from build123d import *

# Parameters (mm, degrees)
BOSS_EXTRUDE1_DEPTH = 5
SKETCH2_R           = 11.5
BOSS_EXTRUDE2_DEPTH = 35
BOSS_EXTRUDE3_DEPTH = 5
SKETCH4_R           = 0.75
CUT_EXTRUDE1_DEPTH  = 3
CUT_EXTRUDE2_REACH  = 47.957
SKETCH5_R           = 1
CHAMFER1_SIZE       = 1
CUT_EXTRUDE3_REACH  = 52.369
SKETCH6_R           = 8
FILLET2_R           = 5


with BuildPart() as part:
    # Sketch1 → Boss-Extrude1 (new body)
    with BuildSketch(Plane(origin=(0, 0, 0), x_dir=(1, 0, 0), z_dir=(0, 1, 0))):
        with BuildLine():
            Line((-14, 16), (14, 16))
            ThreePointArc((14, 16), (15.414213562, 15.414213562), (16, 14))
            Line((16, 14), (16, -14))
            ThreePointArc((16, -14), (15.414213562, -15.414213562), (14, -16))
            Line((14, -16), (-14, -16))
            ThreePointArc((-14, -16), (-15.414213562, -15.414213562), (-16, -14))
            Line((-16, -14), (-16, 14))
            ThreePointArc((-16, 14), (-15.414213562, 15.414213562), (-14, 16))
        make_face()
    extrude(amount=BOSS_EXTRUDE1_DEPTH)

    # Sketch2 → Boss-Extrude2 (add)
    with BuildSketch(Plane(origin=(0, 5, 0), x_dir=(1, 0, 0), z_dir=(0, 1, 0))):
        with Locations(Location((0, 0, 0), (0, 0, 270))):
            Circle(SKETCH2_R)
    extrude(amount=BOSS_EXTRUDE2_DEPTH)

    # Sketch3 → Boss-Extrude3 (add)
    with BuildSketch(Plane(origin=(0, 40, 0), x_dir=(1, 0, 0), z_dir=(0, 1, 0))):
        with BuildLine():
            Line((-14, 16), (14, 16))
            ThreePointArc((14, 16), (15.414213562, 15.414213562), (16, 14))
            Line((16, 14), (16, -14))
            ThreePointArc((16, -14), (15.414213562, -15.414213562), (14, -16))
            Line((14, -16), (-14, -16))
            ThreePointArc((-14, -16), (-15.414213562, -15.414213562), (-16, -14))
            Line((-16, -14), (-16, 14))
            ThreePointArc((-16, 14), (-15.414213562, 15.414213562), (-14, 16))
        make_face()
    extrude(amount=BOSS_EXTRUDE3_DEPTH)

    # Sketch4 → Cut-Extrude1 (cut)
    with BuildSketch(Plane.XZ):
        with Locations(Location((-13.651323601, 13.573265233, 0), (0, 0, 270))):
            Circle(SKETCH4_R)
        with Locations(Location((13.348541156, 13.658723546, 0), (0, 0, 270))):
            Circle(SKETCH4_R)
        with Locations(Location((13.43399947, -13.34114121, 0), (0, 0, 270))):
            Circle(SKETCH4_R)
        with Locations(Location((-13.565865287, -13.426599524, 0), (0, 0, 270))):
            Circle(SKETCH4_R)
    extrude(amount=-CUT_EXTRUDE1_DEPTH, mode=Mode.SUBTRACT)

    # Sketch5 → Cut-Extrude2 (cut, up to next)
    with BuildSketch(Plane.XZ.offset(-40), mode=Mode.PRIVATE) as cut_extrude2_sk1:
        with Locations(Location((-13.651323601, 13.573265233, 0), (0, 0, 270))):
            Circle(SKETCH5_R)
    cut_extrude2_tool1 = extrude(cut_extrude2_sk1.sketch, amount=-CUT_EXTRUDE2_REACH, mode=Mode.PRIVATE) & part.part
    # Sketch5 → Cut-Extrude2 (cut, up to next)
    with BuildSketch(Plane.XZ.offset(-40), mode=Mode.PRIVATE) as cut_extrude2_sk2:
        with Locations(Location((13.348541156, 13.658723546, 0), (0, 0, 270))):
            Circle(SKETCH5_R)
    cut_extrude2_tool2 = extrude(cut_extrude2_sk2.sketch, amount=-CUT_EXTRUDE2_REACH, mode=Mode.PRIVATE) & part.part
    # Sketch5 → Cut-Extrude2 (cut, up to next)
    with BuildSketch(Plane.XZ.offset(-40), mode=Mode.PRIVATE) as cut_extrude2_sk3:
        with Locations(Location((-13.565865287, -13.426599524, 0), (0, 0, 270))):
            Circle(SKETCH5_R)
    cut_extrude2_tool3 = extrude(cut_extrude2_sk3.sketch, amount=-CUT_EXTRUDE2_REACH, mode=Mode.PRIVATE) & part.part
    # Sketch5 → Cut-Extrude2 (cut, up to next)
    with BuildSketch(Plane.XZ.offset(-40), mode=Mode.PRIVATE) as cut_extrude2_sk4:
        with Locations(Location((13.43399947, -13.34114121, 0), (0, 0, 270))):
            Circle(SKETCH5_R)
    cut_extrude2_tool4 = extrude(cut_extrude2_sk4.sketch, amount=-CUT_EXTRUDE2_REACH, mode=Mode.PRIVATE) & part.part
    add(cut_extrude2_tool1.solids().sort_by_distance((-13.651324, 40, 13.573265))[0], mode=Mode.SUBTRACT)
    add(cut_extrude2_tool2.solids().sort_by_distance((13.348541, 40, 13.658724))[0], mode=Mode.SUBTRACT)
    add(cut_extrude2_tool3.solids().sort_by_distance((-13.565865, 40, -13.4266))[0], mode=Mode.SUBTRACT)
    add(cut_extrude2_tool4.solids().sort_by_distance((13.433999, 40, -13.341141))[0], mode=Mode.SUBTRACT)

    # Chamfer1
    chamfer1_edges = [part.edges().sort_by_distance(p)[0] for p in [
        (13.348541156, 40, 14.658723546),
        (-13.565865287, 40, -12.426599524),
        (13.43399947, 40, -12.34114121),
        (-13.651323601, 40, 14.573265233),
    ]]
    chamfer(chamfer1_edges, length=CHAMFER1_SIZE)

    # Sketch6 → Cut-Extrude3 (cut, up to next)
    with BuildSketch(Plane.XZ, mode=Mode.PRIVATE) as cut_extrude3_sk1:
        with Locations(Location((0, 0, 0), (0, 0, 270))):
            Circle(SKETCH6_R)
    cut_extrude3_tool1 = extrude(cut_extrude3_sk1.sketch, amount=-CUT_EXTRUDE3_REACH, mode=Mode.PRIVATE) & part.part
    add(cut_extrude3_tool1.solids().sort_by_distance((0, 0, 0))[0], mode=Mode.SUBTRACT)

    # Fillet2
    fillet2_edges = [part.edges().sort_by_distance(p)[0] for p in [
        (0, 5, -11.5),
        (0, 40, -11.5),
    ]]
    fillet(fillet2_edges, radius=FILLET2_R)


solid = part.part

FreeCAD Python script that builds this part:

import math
import FreeCAD as App
import Part
import Sketcher

V = App.Vector


def edges_at(feature, points):
    """Names of the edges that pass closest to the given points."""
    edges = feature.Shape.Edges
    near = lambda p: min(range(len(edges)), key=lambda i: edges[i].distToShape(Part.Vertex(*p))[0])
    return sorted({f"Edge{near(p) + 1}" for p in points})

doc = App.newDocument("Part")
body = doc.addObject("PartDesign::Body", "Body")

# Sketch on XZ plane
sketch1 = body.newObject("Sketcher::SketchObject", "Sketch")
sketch1.AttachmentSupport = (doc.getObject("XZ_Plane"), [""])
sketch1.MapMode = "FlatFace"
sketch1.addGeometry([
    Part.LineSegment(V(14, -16, 0), V(-14, -16, 0)),  # 0
    Part.ArcOfCircle(Part.Circle(V(-14, -14, 0), V(0, 0, 1), 2), math.radians(-180), math.radians(-90)),  # 1
    Part.LineSegment(V(-16, -14, 0), V(-16, 14, 0)),  # 2
    Part.ArcOfCircle(Part.Circle(V(-14, 14, 0), V(0, 0, 1), 2), math.radians(90), math.radians(180)),  # 3
    Part.LineSegment(V(-14, 16, 0), V(14, 16, 0)),  # 4
    Part.ArcOfCircle(Part.Circle(V(14, 14, 0), V(0, 0, 1), 2), math.radians(0), math.radians(90)),  # 5
    Part.LineSegment(V(16, 14, 0), V(16, -14, 0)),  # 6
    Part.ArcOfCircle(Part.Circle(V(14, -14, 0), V(0, 0, 1), 2), math.radians(-90), math.radians(0)),  # 7
], False)
sketch1.addConstraint([
    Sketcher.Constraint("Tangent", 0, 2, 1, 2),
    Sketcher.Constraint("Tangent", 1, 1, 2, 1),
    Sketcher.Constraint("Tangent", 2, 2, 3, 2),
    Sketcher.Constraint("Tangent", 3, 1, 4, 1),
    Sketcher.Constraint("Tangent", 4, 2, 5, 2),
    Sketcher.Constraint("Tangent", 5, 1, 6, 1),
    Sketcher.Constraint("Tangent", 6, 2, 7, 2),
    Sketcher.Constraint("Tangent", 7, 1, 0, 1),
    Sketcher.Constraint("Horizontal", 0),
    Sketcher.Constraint("Vertical", 2),
    Sketcher.Constraint("Horizontal", 4),
    Sketcher.Constraint("Vertical", 6),
    Sketcher.Constraint("Equal", 1, 3),
    Sketcher.Constraint("Equal", 3, 5),
    Sketcher.Constraint("Equal", 5, 7),
    Sketcher.Constraint("Symmetric", 1, 3, 5, 3, -1, 1),
    Sketcher.Constraint("Equal", 4, 2),
    Sketcher.Constraint("Radius", 1, 2.0),
    Sketcher.Constraint("DistanceX", 0, 2, 0, 1, 28.0),
])
pad1 = body.newObject("PartDesign::Pad", "Pad")
pad1.Profile = sketch1
pad1.Length = 5
pad1.Reversed = True

# Sketch on XZ plane
sketch2 = body.newObject("Sketcher::SketchObject", "Sketch001")
sketch2.AttachmentSupport = (doc.getObject("XZ_Plane"), [""])
sketch2.MapMode = "FlatFace"
sketch2.AttachmentOffset = App.Placement(V(0, 0, -5), App.Rotation())
sketch2.addGeometry(Part.Circle(V(0, 0, 0), V(0, 0, 1), 12), False)
sketch2.addConstraint([
    Sketcher.Constraint("Coincident", 0, 3, -1, 1),
    Sketcher.Constraint("Diameter", 0, 23.0),
])
pad2 = body.newObject("PartDesign::Pad", "Pad001")
pad2.Profile = sketch2
pad2.Length = 35
pad2.Reversed = True

# Sketch on XZ plane
sketch3 = body.newObject("Sketcher::SketchObject", "Sketch002")
sketch3.AttachmentSupport = (doc.getObject("XZ_Plane"), [""])
sketch3.MapMode = "FlatFace"
sketch3.AttachmentOffset = App.Placement(V(0, 0, -40), App.Rotation())
sketch3.addGeometry([
    Part.LineSegment(V(14, -16, 0), V(-14, -16, 0)),  # 0
    Part.ArcOfCircle(Part.Circle(V(-14, -14, 0), V(0, 0, 1), 2), math.radians(-180), math.radians(-90)),  # 1
    Part.LineSegment(V(-16, -14, 0), V(-16, 14, 0)),  # 2
    Part.ArcOfCircle(Part.Circle(V(-14, 14, 0), V(0, 0, 1), 2), math.radians(90), math.radians(180)),  # 3
    Part.LineSegment(V(-14, 16, 0), V(14, 16, 0)),  # 4
    Part.ArcOfCircle(Part.Circle(V(14, 14, 0), V(0, 0, 1), 2), math.radians(0), math.radians(90)),  # 5
    Part.LineSegment(V(16, 14, 0), V(16, -14, 0)),  # 6
    Part.ArcOfCircle(Part.Circle(V(14, -14, 0), V(0, 0, 1), 2), math.radians(-90), math.radians(0)),  # 7
], False)
sketch3.addConstraint([
    Sketcher.Constraint("Tangent", 0, 2, 1, 2),
    Sketcher.Constraint("Tangent", 1, 1, 2, 1),
    Sketcher.Constraint("Tangent", 2, 2, 3, 2),
    Sketcher.Constraint("Tangent", 3, 1, 4, 1),
    Sketcher.Constraint("Tangent", 4, 2, 5, 2),
    Sketcher.Constraint("Tangent", 5, 1, 6, 1),
    Sketcher.Constraint("Tangent", 6, 2, 7, 2),
    Sketcher.Constraint("Tangent", 7, 1, 0, 1),
    Sketcher.Constraint("Horizontal", 0),
    Sketcher.Constraint("Vertical", 2),
    Sketcher.Constraint("Horizontal", 4),
    Sketcher.Constraint("Vertical", 6),
    Sketcher.Constraint("Equal", 1, 3),
    Sketcher.Constraint("Equal", 3, 5),
    Sketcher.Constraint("Equal", 5, 7),
    Sketcher.Constraint("Symmetric", 1, 3, 5, 3, -1, 1),
    Sketcher.Constraint("Equal", 4, 2),
    Sketcher.Constraint("Radius", 1, 2.0),
    Sketcher.Constraint("DistanceX", 0, 2, 0, 1, 28.0),
])
pad3 = body.newObject("PartDesign::Pad", "Pad002")
pad3.Profile = sketch3
pad3.Length = 5
pad3.Reversed = True

# Sketch on XZ plane
sketch4 = body.newObject("Sketcher::SketchObject", "Sketch003")
sketch4.AttachmentSupport = (doc.getObject("XZ_Plane"), [""])
sketch4.MapMode = "FlatFace"
sketch4.addGeometry([
    Part.Circle(V(-13.7, 13.6, 0), V(0, 0, 1), 0.8),
    Part.Circle(V(13.3, 13.7, 0), V(0, 0, 1), 0.8),
    Part.Circle(V(13.4, -13.3, 0), V(0, 0, 1), 0.8),
    Part.Circle(V(-13.6, -13.4, 0), V(0, 0, 1), 0.8),
], False)
sketch4.addConstraint([
    Sketcher.Constraint("Equal", 0, 1),
    Sketcher.Constraint("Equal", 1, 2),
    Sketcher.Constraint("Equal", 2, 3),
    Sketcher.Constraint("Diameter", 0, 1.5),
    Sketcher.Constraint("DistanceX", -1, 1, 2, 3, 13.433999),
    Sketcher.Constraint("DistanceY", 3, 3, -1, 1, 13.4266),
    Sketcher.Constraint("DistanceX", -1, 1, 1, 3, 13.348541),
    Sketcher.Constraint("DistanceY", 2, 3, -1, 1, 13.341141),
    Sketcher.Constraint("DistanceY", 0, 3, 1, 3, 0.085458),
    Sketcher.Constraint("DistanceX", 0, 3, 3, 3, 0.085458),
    Sketcher.Constraint("DistanceX", 0, 3, -1, 1, 13.651324),
    Sketcher.Constraint("DistanceY", -1, 1, 0, 3, 13.573265),
])
pocket1 = body.newObject("PartDesign::Pocket", "Pocket")
pocket1.Profile = sketch4
pocket1.Length = 3

# Sketch on XZ plane
sketch5 = body.newObject("Sketcher::SketchObject", "Sketch004")
sketch5.AttachmentSupport = (doc.getObject("XZ_Plane"), [""])
sketch5.MapMode = "FlatFace"
sketch5.AttachmentOffset = App.Placement(V(0, 0, -40), App.Rotation())
sketch5.addGeometry(Part.Circle(V(-13.7, 13.6, 0), V(0, 0, 1), 1), False)
sketch5.addConstraint([
    Sketcher.Constraint("Diameter", 0, 2.0),
    Sketcher.Constraint("DistanceX", 0, 3, -1, 1, 13.651324),
    Sketcher.Constraint("DistanceY", -1, 1, 0, 3, 13.573265),
])
pocket2 = body.newObject("PartDesign::Pocket", "Pocket001")
pocket2.Profile = sketch5
pocket2.Type = "UpToFirst"

# Sketch on XZ plane
sketch6 = body.newObject("Sketcher::SketchObject", "Sketch005")
sketch6.AttachmentSupport = (doc.getObject("XZ_Plane"), [""])
sketch6.MapMode = "FlatFace"
sketch6.AttachmentOffset = App.Placement(V(0, 0, -40), App.Rotation())
sketch6.addGeometry(Part.Circle(V(13.3, 13.7, 0), V(0, 0, 1), 1), False)
sketch6.addConstraint([
    Sketcher.Constraint("Diameter", 0, 2.0),
    Sketcher.Constraint("DistanceX", -1, 1, 0, 3, 13.348541),
    Sketcher.Constraint("DistanceY", -1, 1, 0, 3, 13.658724),
])
pocket3 = body.newObject("PartDesign::Pocket", "Pocket002")
pocket3.Profile = sketch6
pocket3.Type = "UpToFirst"

# Sketch on XZ plane
sketch7 = body.newObject("Sketcher::SketchObject", "Sketch006")
sketch7.AttachmentSupport = (doc.getObject("XZ_Plane"), [""])
sketch7.MapMode = "FlatFace"
sketch7.AttachmentOffset = App.Placement(V(0, 0, -40), App.Rotation())
sketch7.addGeometry(Part.Circle(V(-13.6, -13.4, 0), V(0, 0, 1), 1), False)
sketch7.addConstraint([
    Sketcher.Constraint("Diameter", 0, 2.0),
    Sketcher.Constraint("DistanceY", 0, 3, -1, 1, 13.4266),
    Sketcher.Constraint("DistanceX", 0, 3, -1, 1, 13.565865),
])
pocket4 = body.newObject("PartDesign::Pocket", "Pocket003")
pocket4.Profile = sketch7
pocket4.Type = "UpToFirst"

# Sketch on XZ plane
sketch8 = body.newObject("Sketcher::SketchObject", "Sketch007")
sketch8.AttachmentSupport = (doc.getObject("XZ_Plane"), [""])
sketch8.MapMode = "FlatFace"
sketch8.AttachmentOffset = App.Placement(V(0, 0, -40), App.Rotation())
sketch8.addGeometry(Part.Circle(V(13.4, -13.3, 0), V(0, 0, 1), 1), False)
sketch8.addConstraint([
    Sketcher.Constraint("Diameter", 0, 2.0),
    Sketcher.Constraint("DistanceX", -1, 1, 0, 3, 13.433999),
    Sketcher.Constraint("DistanceY", 0, 3, -1, 1, 13.341141),
])
pocket5 = body.newObject("PartDesign::Pocket", "Pocket004")
pocket5.Profile = sketch8
pocket5.Type = "UpToFirst"
doc.recompute()

chamfer = body.newObject("PartDesign::Chamfer", "Chamfer")
chamfer.Base = (pocket5, edges_at(pocket5, [
    (13.349, 40, 14.659),
    (-13.566, 40, -12.427),
    (13.434, 40, -12.341),
    (-13.651, 40, 14.573),
]))
chamfer.Size = 1

# Sketch on XZ plane
sketch9 = body.newObject("Sketcher::SketchObject", "Sketch008")
sketch9.AttachmentSupport = (doc.getObject("XZ_Plane"), [""])
sketch9.MapMode = "FlatFace"
sketch9.addGeometry(Part.Circle(V(0, 0, 0), V(0, 0, 1), 8), False)
sketch9.addConstraint([
    Sketcher.Constraint("Coincident", 0, 3, -1, 1),
    Sketcher.Constraint("Diameter", 0, 16.0),
])
pocket6 = body.newObject("PartDesign::Pocket", "Pocket005")
pocket6.Profile = sketch9
pocket6.Type = "UpToFirst"
doc.recompute()

fillet = body.newObject("PartDesign::Fillet", "Fillet")
fillet.Base = (pocket6, edges_at(pocket6, [(0, 5, -11.5), (0, 40, -11.5)]))
fillet.Radius = 5

doc.recompute()
